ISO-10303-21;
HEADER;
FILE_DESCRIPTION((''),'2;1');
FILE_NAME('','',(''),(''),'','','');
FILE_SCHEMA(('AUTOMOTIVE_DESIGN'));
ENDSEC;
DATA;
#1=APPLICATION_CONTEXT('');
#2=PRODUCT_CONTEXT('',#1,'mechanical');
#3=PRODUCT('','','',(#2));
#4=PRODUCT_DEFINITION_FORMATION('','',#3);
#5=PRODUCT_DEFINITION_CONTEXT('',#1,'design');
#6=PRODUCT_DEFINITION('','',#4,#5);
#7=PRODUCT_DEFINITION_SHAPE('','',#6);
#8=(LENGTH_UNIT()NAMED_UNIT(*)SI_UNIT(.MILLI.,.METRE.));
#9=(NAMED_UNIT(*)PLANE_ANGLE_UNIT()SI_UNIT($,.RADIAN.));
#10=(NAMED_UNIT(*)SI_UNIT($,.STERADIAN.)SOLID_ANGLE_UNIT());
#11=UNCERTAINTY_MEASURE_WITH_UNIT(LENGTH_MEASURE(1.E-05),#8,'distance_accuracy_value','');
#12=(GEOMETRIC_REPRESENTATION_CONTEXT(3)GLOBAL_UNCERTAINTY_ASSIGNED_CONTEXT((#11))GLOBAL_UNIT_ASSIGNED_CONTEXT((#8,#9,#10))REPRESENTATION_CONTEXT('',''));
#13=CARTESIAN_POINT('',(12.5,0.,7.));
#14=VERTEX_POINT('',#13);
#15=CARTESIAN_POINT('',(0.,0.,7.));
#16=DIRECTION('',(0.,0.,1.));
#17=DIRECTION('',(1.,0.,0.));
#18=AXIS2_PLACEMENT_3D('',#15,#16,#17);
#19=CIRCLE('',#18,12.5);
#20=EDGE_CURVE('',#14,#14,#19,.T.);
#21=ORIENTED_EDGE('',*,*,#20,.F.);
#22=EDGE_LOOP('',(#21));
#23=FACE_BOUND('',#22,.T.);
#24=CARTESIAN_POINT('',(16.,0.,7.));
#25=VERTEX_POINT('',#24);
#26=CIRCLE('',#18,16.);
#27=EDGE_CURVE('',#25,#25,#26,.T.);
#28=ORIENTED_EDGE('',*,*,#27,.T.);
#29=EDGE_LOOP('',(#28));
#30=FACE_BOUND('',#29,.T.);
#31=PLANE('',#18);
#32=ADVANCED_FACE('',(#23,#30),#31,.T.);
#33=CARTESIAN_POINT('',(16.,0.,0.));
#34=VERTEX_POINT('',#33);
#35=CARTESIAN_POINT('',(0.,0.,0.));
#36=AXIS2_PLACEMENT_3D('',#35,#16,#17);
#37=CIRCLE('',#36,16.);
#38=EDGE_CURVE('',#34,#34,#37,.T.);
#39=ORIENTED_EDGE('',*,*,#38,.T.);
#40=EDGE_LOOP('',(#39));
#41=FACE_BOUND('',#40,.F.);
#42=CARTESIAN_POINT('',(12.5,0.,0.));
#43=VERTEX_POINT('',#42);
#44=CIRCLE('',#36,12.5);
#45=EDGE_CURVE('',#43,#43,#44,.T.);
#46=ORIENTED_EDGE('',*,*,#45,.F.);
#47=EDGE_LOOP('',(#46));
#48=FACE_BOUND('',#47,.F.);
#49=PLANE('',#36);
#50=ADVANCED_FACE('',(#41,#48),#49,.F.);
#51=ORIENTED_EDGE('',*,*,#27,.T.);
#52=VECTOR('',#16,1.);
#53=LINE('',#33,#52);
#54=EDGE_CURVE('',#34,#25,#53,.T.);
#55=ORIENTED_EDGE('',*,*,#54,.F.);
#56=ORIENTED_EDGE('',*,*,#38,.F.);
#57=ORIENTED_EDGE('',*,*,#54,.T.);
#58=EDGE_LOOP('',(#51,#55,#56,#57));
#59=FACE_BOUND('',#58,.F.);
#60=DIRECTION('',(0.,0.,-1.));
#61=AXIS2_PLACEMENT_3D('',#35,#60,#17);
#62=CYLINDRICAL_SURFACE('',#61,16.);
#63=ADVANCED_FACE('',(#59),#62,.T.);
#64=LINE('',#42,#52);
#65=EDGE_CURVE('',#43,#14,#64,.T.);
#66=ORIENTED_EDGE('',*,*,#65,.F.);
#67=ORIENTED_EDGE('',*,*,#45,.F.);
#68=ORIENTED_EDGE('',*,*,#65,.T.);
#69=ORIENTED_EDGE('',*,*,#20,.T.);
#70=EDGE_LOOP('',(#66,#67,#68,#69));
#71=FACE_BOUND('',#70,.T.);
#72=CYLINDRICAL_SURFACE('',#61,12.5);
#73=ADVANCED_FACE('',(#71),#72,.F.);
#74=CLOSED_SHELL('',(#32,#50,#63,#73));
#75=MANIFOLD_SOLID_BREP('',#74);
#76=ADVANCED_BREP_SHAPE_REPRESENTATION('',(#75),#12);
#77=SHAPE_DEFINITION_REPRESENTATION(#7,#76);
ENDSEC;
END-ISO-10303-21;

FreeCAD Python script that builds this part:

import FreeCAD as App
import Part
import Sketcher

doc = App.newDocument("Part")
body = doc.addObject("PartDesign::Body", "Body")

# Sketch on XY plane
sketch1 = doc.addObject("Sketcher::SketchObject", "Sketch")
body.addObject(sketch1)
sketch1.AttachmentSupport = (doc.XY_Plane, [""])
sketch1.MapMode = "FlatFace"
sketch1.addGeometry(Part.Circle(App.Vector(0, 0, 0), App.Vector(0, 0, 1), 16), False)
sketch1.addGeometry(Part.Circle(App.Vector(0, 0, 0), App.Vector(0, 0, 1), 12), False)
sketch1.addConstraint(Sketcher.Constraint("Coincident", 0, 3, -1, 1))
sketch1.addConstraint(Sketcher.Constraint("Coincident", 1, 3, -1, 1))
sketch1.addConstraint(Sketcher.Constraint("Diameter", 0, 32.0))
sketch1.addConstraint(Sketcher.Constraint("Diameter", 1, 25.0))
pad1 = doc.addObject("PartDesign::Pad", "Pad")
body.addObject(pad1)
pad1.Profile = sketch1
pad1.Length = 7

doc.recompute()
